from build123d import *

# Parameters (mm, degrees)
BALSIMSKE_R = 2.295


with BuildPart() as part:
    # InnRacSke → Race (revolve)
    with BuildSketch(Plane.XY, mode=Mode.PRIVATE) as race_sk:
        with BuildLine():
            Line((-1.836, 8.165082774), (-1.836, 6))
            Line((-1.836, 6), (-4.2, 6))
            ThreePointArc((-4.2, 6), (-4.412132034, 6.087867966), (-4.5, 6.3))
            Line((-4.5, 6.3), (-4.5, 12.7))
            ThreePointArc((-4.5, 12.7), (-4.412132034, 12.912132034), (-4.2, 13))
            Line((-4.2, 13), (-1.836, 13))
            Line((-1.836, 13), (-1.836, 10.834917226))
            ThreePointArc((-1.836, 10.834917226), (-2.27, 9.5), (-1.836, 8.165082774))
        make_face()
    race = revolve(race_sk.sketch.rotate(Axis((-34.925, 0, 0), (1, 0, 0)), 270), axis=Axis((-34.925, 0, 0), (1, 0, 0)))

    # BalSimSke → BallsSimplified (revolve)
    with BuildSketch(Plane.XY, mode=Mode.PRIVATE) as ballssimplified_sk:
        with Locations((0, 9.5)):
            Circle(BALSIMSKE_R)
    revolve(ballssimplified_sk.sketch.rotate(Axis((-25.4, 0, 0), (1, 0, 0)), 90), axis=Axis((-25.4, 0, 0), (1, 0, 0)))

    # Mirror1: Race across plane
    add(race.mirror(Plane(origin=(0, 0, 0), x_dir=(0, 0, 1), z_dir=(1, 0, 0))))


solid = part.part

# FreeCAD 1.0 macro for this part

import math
import FreeCAD as App
import Part
import Sketcher
from FreeCAD import Vector

doc = App.newDocument("Part")
body = doc.addObject("PartDesign::Body", "Body")

sketch1 = doc.addObject("Sketcher::SketchObject", "Sketch")
body.addObject(sketch1)
sketch1.AttachmentSupport = (doc.XY_Plane, [""])
sketch1.MapMode = "FlatFace"
sketch1.addGeometry([
    Part.LineSegment(Vector(-1.84, 6, 0), Vector(-1.84, 8.17, 0)),
    Part.ArcOfCircle(Part.Circle(Vector(0, 9.5, 0), Vector(0, 0, 1), 2.27), math.radians(144), math.radians(216)),
    Part.LineSegment(Vector(-1.84, 10.83, 0), Vector(-1.84, 13, 0)),
    Part.LineSegment(Vector(-1.84, 13, 0), Vector(-4.2, 13, 0)),
    Part.ArcOfCircle(Part.Circle(Vector(-4.2, 12.7, 0), Vector(0, 0, 1), 0.3), math.radians(90), math.radians(180)),
    Part.LineSegment(Vector(-4.5, 12.7, 0), Vector(-4.5, 6.3, 0)),
    Part.ArcOfCircle(Part.Circle(Vector(-4.2, 6.3, 0), Vector(0, 0, 1), 0.3), math.radians(-180), math.radians(-90)),
    Part.LineSegment(Vector(-4.2, 6, 0), Vector(-1.84, 6, 0)),
], False)
sketch1.addConstraint([
    Sketcher.Constraint("Coincident", 0, 2, 1, 2),
    Sketcher.Constraint("Coincident", 1, 1, 2, 1),
    Sketcher.Constraint("Coincident", 2, 2, 3, 1),
    Sketcher.Constraint("Tangent", 3, 2, 4, 1),
    Sketcher.Constraint("Tangent", 4, 2, 5, 1),
    Sketcher.Constraint("Tangent", 5, 2, 6, 1),
    Sketcher.Constraint("Tangent", 6, 2, 7, 1),
    Sketcher.Constraint("Coincident", 7, 2, 0, 1),
    Sketcher.Constraint("Vertical", 0),
    Sketcher.Constraint("Vertical", 2),
    Sketcher.Constraint("Horizontal", 3),
    Sketcher.Constraint("Vertical", 5),
    Sketcher.Constraint("Horizontal", 7),
    Sketcher.Constraint("Equal", 4, 6),
    Sketcher.Constraint("PointOnObject", 1, 3, -2),
    Sketcher.Constraint("Vertical", 0, 2, 1, 1),
    Sketcher.Constraint("Equal", 0, 2),
    Sketcher.Constraint("Radius", 4, 0.3),
    Sketcher.Constraint("Radius", 1, 2.27),
    Sketcher.Constraint("DistanceY", 5, 2, 5, 1, 6.4),
    Sketcher.Constraint("DistanceY", -1, 1, 2, 2, 13.0),
    Sketcher.Constraint("DistanceX", 4, 3, -1, 1, 4.2),
    Sketcher.Constraint("DistanceX", 3, 2, 3, 1, 2.364),
])
revolution = doc.addObject("PartDesign::Revolution", "Revolution")
body.addObject(revolution)
revolution.Profile = sketch1
revolution.ReferenceAxis = (sketch1, ["H_Axis"])
revolution.Angle = 360

sketch2 = doc.addObject("Sketcher::SketchObject", "Sketch001")
body.addObject(sketch2)
sketch2.AttachmentSupport = (doc.XY_Plane, [""])
sketch2.MapMode = "FlatFace"
sketch2.addGeometry(Part.Circle(Vector(0, 9.5, 0), Vector(0, 0, 1), 2.3), False)
sketch2.addConstraint([
    Sketcher.Constraint("PointOnObject", 0, 3, -2),
    Sketcher.Constraint("Diameter", 0, 4.59),
    Sketcher.Constraint("DistanceY", -1, 1, 0, 3, 9.5),
])
revolution2 = doc.addObject("PartDesign::Revolution", "Revolution001")
body.addObject(revolution2)
revolution2.Profile = sketch2
revolution2.ReferenceAxis = (sketch2, ["H_Axis"])
revolution2.Angle = 360
doc.recompute()

mirrored = doc.addObject("PartDesign::Mirrored", "Mirrored")
body.addObject(mirrored)
mirrored.Originals = [revolution]
mirrored.MirrorPlane = (doc.YZ_Plane, [""])
body.Tip = mirrored

doc.recompute()
